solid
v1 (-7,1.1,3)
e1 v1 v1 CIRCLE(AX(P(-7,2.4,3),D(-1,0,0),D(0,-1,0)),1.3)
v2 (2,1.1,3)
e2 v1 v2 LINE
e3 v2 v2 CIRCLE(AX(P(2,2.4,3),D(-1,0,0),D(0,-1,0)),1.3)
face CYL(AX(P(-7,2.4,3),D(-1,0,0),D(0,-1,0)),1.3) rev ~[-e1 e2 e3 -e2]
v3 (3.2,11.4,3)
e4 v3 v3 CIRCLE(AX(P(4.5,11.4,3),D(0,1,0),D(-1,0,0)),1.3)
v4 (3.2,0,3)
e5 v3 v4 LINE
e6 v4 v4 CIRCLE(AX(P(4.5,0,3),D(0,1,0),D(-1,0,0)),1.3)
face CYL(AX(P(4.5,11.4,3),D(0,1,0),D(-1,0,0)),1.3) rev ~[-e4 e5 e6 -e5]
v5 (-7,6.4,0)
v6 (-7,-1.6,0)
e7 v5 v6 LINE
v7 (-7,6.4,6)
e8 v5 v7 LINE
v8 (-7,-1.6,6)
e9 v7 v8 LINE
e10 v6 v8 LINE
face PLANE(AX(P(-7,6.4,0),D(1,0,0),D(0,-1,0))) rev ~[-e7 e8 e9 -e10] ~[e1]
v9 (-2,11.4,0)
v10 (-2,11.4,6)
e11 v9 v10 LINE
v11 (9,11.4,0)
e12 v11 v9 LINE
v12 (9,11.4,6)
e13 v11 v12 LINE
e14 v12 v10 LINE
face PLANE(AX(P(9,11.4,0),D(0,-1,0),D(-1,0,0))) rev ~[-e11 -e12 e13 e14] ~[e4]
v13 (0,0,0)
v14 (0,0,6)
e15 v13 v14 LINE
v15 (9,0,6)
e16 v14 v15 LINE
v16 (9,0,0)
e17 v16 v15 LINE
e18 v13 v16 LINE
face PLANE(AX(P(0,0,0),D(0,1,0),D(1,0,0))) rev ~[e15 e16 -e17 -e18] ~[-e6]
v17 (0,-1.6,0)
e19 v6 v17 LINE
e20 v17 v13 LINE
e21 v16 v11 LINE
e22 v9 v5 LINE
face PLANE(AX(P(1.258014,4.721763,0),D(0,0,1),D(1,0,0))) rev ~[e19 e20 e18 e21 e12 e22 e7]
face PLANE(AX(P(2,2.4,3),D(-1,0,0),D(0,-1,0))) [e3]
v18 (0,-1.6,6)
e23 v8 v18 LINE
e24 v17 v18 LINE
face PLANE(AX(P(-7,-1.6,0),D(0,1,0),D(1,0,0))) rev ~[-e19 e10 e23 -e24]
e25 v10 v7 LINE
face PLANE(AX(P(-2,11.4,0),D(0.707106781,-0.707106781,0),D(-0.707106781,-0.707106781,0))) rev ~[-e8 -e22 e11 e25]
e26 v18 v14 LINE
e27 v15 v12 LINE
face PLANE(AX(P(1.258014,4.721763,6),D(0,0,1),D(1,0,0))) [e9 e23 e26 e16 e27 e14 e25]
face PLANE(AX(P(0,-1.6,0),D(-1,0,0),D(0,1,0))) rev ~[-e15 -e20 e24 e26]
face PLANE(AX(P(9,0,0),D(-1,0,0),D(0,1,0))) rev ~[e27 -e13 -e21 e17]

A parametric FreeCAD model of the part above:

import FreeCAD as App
import Part
import Sketcher
Q = App.Units.Quantity

doc = App.newDocument("Part")
body = doc.addObject("PartDesign::Body", "Body")

# Sketch on XY plane
sketch1 = body.newObject("Sketcher::SketchObject", "Sketch")
sketch1.AttachmentSupport = (doc.getObject("XY_Plane"), [""])
sketch1.MapMode = "FlatFace"
sketch1.addGeometry([
    Part.LineSegment(App.Vector(-7, -1.6, 0), App.Vector(0, -1.6, 0)),  # 0
    Part.LineSegment(App.Vector(0, -1.6, 0), App.Vector(0, 0, 0)),  # 1
    Part.LineSegment(App.Vector(0, 0, 0), App.Vector(9, 0, 0)),  # 2
    Part.LineSegment(App.Vector(9, 0, 0), App.Vector(9, 11.4, 0)),  # 3
    Part.LineSegment(App.Vector(9, 11.4, 0), App.Vector(-2, 11.4, 0)),  # 4
    Part.LineSegment(App.Vector(-2, 11.4, 0), App.Vector(-7, 6.4, 0)),  # 5
    Part.LineSegment(App.Vector(-7, 6.4, 0), App.Vector(-7, -1.6, 0)),  # 6
], False)
sketch1.addConstraint([
    Sketcher.Constraint("Coincident", 0, 2, 1, 1),
    Sketcher.Constraint("Coincident", 1, 2, 2, 1),
    Sketcher.Constraint("Coincident", 2, 2, 3, 1),
    Sketcher.Constraint("Coincident", 3, 2, 4, 1),
    Sketcher.Constraint("Coincident", 4, 2, 5, 1),
    Sketcher.Constraint("Coincident", 5, 2, 6, 1),
    Sketcher.Constraint("Coincident", 6, 2, 0, 1),
    Sketcher.Constraint("Horizontal", 0),
    Sketcher.Constraint("Vertical", 1),
    Sketcher.Constraint("Horizontal", 2),
    Sketcher.Constraint("Vertical", 3),
    Sketcher.Constraint("Horizontal", 4),
    Sketcher.Constraint("Vertical", 6),
    Sketcher.Constraint("Coincident", 1, 2, -1, 1),
    Sketcher.Constraint("DistanceX", 0, 1, 0, 2, Q("7 mm")),
    Sketcher.Constraint("DistanceX", 2, 1, 2, 2, Q("9 mm")),
    Sketcher.Constraint("DistanceX", 4, 2, 4, 1, Q("11 mm")),
    Sketcher.Constraint("DistanceY", 6, 2, 6, 1, Q("8 mm")),
    Sketcher.Constraint("Angle", 5, Q("-135 deg")),
    Sketcher.Constraint("DistanceY", 1, 1, 1, 2, Q("1.6 mm")),
])
pad1 = body.newObject("PartDesign::Pad", "Pad")
pad1.Profile = sketch1
pad1.Length = 6

# Sketch on YZ plane
sketch2 = body.newObject("Sketcher::SketchObject", "Sketch001")
sketch2.AttachmentSupport = (doc.getObject("YZ_Plane"), [""])
sketch2.MapMode = "FlatFace"
sketch2.AttachmentOffset = App.Placement(App.Vector(0, 0, -7), App.Rotation())
sketch2.addGeometry(Part.Circle(App.Vector(2.4, 3, 0), App.Vector(0, 0, 1), 1.3), False)
sketch2.addConstraint([
    Sketcher.Constraint("Diameter", 0, Q("2.6 mm")),
    Sketcher.Constraint("DistanceY", -1, 1, 0, 3, Q("3 mm")),
    Sketcher.Constraint("DistanceX", -1, 1, 0, 3, Q("2.4 mm")),
])
pocket1 = body.newObject("PartDesign::Pocket", "Pocket")
pocket1.Profile = sketch2
pocket1.Length = 9
pocket1.Reversed = True

# Sketch on XZ plane
sketch3 = body.newObject("Sketcher::SketchObject", "Sketch002")
sketch3.AttachmentSupport = (doc.getObject("XZ_Plane"), [""])
sketch3.MapMode = "FlatFace"
sketch3.AttachmentOffset = App.Placement(App.Vector(0, 0, -11.4), App.Rotation())
sketch3.addGeometry(Part.Circle(App.Vector(4.5, 3, 0), App.Vector(0, 0, 1), 1.3), False)
sketch3.addConstraint([
    Sketcher.Constraint("Diameter", 0, Q("2.6 mm")),
    Sketcher.Constraint("DistanceY", -1, 1, 0, 3, Q("3 mm")),
    Sketcher.Constraint("DistanceX", -1, 1, 0, 3, Q("4.5 mm")),
])
pocket2 = body.newObject("PartDesign::Pocket", "Pocket001")
pocket2.Profile = sketch3
pocket2.Type = "ThroughAll"
pocket2.Reversed = True

doc.recompute()
